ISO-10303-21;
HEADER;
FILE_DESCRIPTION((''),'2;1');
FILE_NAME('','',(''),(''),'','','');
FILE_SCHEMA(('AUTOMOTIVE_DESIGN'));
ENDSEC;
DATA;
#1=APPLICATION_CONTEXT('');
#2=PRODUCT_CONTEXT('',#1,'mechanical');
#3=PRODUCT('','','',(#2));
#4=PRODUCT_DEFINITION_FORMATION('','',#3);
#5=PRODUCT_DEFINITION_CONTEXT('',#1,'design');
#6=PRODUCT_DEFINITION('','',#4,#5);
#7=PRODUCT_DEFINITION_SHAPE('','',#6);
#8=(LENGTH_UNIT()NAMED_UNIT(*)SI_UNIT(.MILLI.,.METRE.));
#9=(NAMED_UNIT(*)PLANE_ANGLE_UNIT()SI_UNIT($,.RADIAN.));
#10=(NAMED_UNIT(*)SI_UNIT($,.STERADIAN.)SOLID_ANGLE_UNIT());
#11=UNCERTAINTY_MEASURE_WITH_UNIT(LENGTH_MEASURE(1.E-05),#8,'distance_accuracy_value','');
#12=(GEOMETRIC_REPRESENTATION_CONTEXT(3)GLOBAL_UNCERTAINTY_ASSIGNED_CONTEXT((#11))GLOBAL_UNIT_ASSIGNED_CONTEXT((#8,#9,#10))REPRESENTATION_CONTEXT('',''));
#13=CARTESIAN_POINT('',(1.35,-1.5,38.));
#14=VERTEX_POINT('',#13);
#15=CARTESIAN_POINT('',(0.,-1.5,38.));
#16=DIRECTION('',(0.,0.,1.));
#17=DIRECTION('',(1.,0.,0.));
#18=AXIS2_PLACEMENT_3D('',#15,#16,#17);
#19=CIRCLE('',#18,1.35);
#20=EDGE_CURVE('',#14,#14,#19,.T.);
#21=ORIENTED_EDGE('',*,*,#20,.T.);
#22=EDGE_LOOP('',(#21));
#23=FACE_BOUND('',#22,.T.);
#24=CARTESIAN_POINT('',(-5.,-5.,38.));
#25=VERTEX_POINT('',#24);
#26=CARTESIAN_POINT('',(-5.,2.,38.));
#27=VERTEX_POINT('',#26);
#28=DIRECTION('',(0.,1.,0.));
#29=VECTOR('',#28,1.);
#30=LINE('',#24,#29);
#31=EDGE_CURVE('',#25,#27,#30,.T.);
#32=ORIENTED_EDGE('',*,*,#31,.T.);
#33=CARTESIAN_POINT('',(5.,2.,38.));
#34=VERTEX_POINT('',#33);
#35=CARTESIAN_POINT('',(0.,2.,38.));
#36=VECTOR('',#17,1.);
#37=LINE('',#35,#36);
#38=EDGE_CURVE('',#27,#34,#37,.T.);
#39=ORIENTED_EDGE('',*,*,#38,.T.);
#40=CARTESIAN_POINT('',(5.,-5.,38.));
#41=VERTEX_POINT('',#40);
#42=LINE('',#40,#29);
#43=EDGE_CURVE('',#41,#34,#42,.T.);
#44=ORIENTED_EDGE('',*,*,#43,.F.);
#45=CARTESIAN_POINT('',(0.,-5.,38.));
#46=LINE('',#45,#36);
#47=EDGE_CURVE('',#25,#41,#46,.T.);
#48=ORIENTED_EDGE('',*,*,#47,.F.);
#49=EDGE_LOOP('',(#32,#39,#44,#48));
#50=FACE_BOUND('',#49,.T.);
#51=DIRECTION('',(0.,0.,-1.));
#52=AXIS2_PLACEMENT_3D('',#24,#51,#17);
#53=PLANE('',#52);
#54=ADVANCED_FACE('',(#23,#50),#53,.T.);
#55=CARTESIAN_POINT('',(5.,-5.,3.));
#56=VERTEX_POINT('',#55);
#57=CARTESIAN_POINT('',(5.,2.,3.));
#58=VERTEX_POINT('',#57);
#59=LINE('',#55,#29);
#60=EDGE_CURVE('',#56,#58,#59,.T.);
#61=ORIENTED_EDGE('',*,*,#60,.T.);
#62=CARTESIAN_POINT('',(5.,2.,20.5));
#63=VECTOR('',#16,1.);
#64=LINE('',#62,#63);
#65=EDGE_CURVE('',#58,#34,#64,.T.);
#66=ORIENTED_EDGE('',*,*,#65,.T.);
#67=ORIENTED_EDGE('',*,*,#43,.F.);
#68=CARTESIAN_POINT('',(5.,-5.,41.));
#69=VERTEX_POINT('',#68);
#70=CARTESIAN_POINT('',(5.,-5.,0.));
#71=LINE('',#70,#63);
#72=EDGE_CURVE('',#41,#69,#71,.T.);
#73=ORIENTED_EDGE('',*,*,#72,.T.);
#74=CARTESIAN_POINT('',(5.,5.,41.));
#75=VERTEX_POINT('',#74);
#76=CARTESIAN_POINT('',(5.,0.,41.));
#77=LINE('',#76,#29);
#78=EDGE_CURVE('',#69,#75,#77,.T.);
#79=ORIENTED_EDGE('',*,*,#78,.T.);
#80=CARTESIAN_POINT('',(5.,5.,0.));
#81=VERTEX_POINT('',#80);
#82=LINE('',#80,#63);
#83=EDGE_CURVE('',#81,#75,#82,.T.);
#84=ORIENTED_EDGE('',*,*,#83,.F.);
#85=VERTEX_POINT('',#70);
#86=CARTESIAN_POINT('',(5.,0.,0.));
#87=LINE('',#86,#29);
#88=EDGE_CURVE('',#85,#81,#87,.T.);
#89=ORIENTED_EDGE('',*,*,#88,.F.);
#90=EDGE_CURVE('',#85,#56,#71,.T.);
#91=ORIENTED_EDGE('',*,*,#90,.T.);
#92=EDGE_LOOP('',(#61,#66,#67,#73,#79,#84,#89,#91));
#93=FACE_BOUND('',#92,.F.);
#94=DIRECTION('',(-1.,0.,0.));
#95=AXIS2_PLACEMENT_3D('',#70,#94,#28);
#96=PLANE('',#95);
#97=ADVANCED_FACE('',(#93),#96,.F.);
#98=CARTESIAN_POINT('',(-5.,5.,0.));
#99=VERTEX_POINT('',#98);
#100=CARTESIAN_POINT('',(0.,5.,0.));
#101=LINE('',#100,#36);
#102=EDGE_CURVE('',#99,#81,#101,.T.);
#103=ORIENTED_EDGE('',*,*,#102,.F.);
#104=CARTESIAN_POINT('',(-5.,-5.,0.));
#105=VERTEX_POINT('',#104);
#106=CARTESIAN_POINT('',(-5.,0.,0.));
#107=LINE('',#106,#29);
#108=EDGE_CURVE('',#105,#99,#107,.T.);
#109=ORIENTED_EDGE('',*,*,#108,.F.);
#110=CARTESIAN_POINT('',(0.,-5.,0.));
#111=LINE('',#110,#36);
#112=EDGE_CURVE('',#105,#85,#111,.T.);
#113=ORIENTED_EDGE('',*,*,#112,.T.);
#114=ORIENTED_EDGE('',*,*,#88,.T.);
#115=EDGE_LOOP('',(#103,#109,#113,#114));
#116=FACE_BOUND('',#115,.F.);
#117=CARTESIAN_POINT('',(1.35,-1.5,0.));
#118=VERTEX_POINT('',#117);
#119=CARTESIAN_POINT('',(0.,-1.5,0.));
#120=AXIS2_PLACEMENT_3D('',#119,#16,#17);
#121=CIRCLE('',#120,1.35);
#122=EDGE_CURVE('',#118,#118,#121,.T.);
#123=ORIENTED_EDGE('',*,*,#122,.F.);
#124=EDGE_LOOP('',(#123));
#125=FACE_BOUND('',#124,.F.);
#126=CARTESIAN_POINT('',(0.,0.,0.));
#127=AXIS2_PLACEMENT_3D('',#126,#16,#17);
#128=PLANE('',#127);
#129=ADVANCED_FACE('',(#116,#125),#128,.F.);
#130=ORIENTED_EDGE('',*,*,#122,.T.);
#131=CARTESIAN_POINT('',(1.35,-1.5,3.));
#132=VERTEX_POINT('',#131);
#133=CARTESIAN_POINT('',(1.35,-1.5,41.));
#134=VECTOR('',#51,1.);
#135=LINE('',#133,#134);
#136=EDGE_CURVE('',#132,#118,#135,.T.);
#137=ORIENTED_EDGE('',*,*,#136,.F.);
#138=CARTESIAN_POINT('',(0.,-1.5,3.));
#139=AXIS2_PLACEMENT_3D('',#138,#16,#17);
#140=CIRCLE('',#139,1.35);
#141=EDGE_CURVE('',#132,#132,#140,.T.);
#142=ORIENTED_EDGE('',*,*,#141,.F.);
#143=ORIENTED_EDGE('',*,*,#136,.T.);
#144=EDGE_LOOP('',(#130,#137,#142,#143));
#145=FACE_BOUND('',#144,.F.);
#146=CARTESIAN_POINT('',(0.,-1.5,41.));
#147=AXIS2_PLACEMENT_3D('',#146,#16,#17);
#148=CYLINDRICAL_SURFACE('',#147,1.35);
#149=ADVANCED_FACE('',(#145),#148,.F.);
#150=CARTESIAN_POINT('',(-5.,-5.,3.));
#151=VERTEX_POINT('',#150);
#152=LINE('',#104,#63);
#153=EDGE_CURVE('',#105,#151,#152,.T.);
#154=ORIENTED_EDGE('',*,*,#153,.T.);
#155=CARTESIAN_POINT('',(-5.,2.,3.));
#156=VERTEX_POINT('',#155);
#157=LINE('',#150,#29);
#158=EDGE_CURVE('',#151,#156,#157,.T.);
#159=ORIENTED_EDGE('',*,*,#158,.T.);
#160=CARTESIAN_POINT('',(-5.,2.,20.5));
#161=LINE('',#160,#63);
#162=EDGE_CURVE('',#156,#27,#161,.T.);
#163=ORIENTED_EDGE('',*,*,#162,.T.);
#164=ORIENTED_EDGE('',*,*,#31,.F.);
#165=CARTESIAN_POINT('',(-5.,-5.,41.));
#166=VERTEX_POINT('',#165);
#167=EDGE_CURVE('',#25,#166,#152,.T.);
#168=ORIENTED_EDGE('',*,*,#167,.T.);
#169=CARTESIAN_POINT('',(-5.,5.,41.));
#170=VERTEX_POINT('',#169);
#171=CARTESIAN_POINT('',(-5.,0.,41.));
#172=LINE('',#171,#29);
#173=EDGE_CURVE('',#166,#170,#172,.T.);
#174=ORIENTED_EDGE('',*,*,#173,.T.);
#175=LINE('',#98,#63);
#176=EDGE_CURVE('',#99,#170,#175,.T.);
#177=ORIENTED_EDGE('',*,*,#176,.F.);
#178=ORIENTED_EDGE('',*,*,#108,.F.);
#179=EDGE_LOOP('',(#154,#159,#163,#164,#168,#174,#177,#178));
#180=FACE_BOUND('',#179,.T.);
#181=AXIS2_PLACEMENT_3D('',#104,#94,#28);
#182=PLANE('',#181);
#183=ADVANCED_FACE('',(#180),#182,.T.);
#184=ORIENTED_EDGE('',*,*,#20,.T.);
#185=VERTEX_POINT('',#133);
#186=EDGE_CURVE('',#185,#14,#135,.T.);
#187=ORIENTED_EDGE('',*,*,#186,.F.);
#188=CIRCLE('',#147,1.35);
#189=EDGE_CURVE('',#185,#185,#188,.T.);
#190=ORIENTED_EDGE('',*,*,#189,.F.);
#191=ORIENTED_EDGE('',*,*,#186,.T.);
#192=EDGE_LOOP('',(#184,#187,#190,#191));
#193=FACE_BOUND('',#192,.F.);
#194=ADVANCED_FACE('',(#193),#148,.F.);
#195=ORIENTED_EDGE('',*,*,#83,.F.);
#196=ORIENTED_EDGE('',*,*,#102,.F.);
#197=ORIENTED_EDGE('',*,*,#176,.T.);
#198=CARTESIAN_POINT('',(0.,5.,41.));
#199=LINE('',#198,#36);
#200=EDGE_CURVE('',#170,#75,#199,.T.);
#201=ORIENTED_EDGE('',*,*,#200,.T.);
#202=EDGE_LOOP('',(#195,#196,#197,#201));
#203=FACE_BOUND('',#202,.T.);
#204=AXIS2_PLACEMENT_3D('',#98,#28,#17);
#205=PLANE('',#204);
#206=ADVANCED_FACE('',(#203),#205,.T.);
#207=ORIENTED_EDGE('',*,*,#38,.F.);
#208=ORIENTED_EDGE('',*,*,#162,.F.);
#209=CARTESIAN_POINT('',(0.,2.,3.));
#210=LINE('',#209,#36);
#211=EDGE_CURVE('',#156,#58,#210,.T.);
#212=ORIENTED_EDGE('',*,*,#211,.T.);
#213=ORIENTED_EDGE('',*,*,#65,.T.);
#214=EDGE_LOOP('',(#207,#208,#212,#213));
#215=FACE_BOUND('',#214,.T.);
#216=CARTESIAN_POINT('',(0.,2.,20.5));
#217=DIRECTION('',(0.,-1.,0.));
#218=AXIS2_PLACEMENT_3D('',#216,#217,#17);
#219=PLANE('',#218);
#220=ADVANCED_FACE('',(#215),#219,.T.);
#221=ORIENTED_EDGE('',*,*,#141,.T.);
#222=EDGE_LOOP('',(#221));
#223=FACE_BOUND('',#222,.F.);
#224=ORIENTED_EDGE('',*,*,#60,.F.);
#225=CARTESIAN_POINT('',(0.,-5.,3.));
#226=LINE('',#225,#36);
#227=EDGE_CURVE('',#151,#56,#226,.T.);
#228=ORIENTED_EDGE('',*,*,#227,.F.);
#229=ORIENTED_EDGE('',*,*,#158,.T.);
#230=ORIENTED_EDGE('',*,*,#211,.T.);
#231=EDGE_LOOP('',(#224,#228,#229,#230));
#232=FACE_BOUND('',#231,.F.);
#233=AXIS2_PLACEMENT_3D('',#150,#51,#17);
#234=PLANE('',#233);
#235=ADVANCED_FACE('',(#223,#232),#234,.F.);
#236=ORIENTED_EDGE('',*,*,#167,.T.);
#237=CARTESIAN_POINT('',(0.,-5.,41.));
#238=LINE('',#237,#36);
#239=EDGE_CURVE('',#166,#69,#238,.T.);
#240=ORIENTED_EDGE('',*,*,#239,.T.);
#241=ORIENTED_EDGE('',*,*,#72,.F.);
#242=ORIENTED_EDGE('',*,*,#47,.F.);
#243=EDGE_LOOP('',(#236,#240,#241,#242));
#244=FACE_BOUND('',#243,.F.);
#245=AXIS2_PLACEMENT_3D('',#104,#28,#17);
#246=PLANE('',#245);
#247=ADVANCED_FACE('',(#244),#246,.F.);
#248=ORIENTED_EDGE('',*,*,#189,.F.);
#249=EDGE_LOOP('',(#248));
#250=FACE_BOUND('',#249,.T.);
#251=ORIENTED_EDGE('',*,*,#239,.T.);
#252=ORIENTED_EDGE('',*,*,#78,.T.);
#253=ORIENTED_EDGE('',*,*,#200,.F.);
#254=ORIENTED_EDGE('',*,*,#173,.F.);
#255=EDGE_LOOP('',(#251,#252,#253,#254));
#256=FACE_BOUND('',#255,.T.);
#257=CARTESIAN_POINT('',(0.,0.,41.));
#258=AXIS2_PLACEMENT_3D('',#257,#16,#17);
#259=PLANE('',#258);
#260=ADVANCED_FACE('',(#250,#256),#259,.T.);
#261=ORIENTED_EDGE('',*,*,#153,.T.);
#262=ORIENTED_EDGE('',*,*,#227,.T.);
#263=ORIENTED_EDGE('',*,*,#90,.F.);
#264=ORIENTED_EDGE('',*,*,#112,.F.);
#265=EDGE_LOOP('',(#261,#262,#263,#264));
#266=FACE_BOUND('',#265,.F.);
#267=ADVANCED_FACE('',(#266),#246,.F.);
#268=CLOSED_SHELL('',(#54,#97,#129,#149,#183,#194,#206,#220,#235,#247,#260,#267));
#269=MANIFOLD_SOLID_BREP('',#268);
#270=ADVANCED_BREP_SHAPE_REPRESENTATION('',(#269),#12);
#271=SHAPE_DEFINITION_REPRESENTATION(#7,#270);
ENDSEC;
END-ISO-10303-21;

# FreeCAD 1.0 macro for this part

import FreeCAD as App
import Part
import Sketcher

doc = App.newDocument("Part")
body = doc.addObject("PartDesign::Body", "Body")

# Sketch on XY plane
sketch1 = doc.addObject("Sketcher::SketchObject", "Sketch")
body.addObject(sketch1)
sketch1.AttachmentSupport = (doc.XY_Plane, [""])
sketch1.MapMode = "FlatFace"
sketch1.addGeometry([
    Part.LineSegment(App.Vector(-5, 5, 0), App.Vector(-5, -5, 0)),
    Part.LineSegment(App.Vector(-5, -5, 0), App.Vector(5, -5, 0)),
    Part.LineSegment(App.Vector(5, -5, 0), App.Vector(5, 5, 0)),
    Part.LineSegment(App.Vector(5, 5, 0), App.Vector(-5, 5, 0)),
], False)
sketch1.addConstraint([
    Sketcher.Constraint("Coincident", 0, 2, 1, 1),
    Sketcher.Constraint("Coincident", 1, 2, 2, 1),
    Sketcher.Constraint("Coincident", 2, 2, 3, 1),
    Sketcher.Constraint("Coincident", 3, 2, 0, 1),
    Sketcher.Constraint("Vertical", 0),
    Sketcher.Constraint("Horizontal", 1),
    Sketcher.Constraint("Vertical", 2),
    Sketcher.Constraint("Horizontal", 3),
    Sketcher.Constraint("Symmetric", 0, 2, 2, 2, -1, 1),
    Sketcher.Constraint("Equal", 3, 0),
    Sketcher.Constraint("DistanceX", 1, 1, 1, 2, 10.0),
])
pad1 = doc.addObject("PartDesign::Pad", "Pad")
body.addObject(pad1)
pad1.Profile = sketch1
pad1.Length = 41

# Sketch on XZ plane
sketch2 = doc.addObject("Sketcher::SketchObject", "Sketch001")
body.addObject(sketch2)
sketch2.AttachmentSupport = (doc.XZ_Plane, [""])
sketch2.MapMode = "FlatFace"
sketch2.AttachmentOffset = App.Placement(App.Vector(0, 0, 5), App.Rotation())
sketch2.addGeometry([
    Part.LineSegment(App.Vector(-5, 38, 0), App.Vector(-5, 3, 0)),
    Part.LineSegment(App.Vector(-5, 3, 0), App.Vector(5, 3, 0)),
    Part.LineSegment(App.Vector(5, 3, 0), App.Vector(5, 38, 0)),
    Part.LineSegment(App.Vector(5, 38, 0), App.Vector(-5, 38, 0)),
], False)
sketch2.addConstraint([
    Sketcher.Constraint("Coincident", 0, 2, 1, 1),
    Sketcher.Constraint("Coincident", 1, 2, 2, 1),
    Sketcher.Constraint("Coincident", 2, 2, 3, 1),
    Sketcher.Constraint("Coincident", 3, 2, 0, 1),
    Sketcher.Constraint("Vertical", 0),
    Sketcher.Constraint("Horizontal", 1),
    Sketcher.Constraint("Vertical", 2),
    Sketcher.Constraint("Horizontal", 3),
    Sketcher.Constraint("DistanceX", 1, 1, 1, 2, 10.0),
    Sketcher.Constraint("DistanceY", 0, 2, 0, 1, 35.0),
    Sketcher.Constraint("DistanceX", 0, 2, -1, 1, 5.0),
    Sketcher.Constraint("DistanceY", -1, 1, 0, 2, 3.0),
])
pocket1 = doc.addObject("PartDesign::Pocket", "Pocket")
body.addObject(pocket1)
pocket1.Profile = sketch2
pocket1.Length = 7

# Sketch on XY plane
sketch3 = doc.addObject("Sketcher::SketchObject", "Sketch002")
body.addObject(sketch3)
sketch3.AttachmentSupport = (doc.XY_Plane, [""])
sketch3.MapMode = "FlatFace"
sketch3.AttachmentOffset = App.Placement(App.Vector(0, 0, 41), App.Rotation())
sketch3.addGeometry(Part.Circle(App.Vector(0, -1.5, 0), App.Vector(0, 0, 1), 1.35), False)
sketch3.addConstraint([
    Sketcher.Constraint("PointOnObject", 0, 3, -2),
    Sketcher.Constraint("Diameter", 0, 2.7),
    Sketcher.Constraint("DistanceY", 0, 3, -1, 1, 1.5),
])
pocket2 = doc.addObject("PartDesign::Pocket", "Pocket001")
body.addObject(pocket2)
pocket2.Profile = sketch3
pocket2.Length = 50

doc.recompute()
